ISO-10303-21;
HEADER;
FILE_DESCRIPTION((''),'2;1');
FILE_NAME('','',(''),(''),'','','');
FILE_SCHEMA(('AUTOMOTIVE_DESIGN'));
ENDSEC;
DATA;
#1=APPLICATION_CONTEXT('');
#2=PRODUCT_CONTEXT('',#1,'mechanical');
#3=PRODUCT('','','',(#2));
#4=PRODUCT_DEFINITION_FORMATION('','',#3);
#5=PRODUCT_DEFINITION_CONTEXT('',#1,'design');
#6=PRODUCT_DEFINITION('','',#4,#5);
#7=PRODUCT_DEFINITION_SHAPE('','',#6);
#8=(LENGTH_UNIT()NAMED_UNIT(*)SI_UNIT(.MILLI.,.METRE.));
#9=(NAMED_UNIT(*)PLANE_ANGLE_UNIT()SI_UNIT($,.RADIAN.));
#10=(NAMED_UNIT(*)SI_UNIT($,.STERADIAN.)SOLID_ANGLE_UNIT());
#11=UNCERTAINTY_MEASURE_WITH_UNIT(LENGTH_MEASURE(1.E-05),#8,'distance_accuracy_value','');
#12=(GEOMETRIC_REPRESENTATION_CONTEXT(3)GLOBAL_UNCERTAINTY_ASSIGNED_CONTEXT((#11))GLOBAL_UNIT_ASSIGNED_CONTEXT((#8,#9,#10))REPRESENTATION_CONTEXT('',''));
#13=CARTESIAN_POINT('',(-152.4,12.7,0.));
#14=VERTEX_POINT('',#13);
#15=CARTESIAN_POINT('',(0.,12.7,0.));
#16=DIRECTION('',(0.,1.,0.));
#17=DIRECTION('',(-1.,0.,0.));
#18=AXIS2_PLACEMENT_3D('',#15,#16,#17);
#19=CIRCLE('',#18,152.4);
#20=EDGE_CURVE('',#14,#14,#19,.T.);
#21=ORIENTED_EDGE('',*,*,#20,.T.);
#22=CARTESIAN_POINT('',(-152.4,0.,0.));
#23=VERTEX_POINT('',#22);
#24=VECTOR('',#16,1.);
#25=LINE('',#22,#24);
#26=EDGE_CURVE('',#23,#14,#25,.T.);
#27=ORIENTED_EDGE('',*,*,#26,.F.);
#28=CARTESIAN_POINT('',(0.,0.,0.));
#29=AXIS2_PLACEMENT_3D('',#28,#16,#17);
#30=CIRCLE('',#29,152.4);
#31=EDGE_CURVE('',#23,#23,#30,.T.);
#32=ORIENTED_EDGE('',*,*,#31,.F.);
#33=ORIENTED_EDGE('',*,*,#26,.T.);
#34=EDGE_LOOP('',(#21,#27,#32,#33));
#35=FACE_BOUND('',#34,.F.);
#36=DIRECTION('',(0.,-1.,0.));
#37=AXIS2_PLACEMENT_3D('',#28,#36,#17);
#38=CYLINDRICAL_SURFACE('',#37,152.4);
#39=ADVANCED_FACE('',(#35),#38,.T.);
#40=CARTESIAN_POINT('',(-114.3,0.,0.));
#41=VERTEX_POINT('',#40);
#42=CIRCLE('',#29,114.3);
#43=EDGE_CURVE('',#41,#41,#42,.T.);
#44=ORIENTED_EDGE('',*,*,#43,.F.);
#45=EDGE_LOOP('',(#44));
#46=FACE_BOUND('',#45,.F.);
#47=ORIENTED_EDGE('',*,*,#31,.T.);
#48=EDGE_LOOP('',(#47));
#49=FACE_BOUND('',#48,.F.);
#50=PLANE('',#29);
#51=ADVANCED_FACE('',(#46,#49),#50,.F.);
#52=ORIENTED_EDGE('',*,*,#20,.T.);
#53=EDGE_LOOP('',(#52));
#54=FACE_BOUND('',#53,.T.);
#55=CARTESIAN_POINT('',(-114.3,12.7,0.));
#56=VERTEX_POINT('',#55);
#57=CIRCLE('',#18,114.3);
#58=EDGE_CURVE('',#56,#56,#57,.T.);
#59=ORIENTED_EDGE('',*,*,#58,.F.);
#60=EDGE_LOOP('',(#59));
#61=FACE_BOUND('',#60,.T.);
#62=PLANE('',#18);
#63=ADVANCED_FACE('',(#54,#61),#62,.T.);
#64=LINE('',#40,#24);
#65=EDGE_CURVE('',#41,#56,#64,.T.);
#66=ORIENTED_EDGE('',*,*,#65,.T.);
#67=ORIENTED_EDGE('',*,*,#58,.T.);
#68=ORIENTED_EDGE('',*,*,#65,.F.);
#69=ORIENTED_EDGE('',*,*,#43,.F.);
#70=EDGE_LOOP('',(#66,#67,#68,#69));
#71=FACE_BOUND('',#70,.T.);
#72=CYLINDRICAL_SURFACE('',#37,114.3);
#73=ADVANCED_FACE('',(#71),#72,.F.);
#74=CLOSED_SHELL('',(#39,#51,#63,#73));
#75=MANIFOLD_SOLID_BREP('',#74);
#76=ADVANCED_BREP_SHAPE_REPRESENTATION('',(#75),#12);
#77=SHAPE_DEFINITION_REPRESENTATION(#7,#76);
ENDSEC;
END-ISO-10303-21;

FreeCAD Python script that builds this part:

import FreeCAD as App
import Part
import Sketcher

V = App.Vector
Q = App.Units.Quantity

doc = App.newDocument("Part")
params = doc.addObject("Spreadsheet::Sheet", "Params")
for row, (alias, value) in enumerate([
    ("sketch1_diameter", "12 in"),
    ("sketch1_diameter2", "9 in"),
    ("pad1_length", "0.5 in"),
], start=1):
    params.set(f"A{row}", alias)
    params.set(f"B{row}", "=" + value)
    params.setAlias(f"B{row}", alias)

body = doc.addObject("PartDesign::Body", "Body")

# Sketch on XZ plane
sketch1 = body.newObject("Sketcher::SketchObject", "Sketch")
sketch1.AttachmentSupport = (doc.getObject("XZ_Plane"), [""])
sketch1.MapMode = "FlatFace"
sketch1.addGeometry([
    Part.Circle(V(0, 0, 0), V(0, 0, 1), 152),
    Part.Circle(V(0, 0, 0), V(0, 0, 1), 114),
], False)
sketch1.addConstraint([
    Sketcher.Constraint("Coincident", 0, 3, -1, 1),
    Sketcher.Constraint("Coincident", 1, 3, -1, 1),
    Sketcher.Constraint("Diameter", 0, Q("12 in")),
    Sketcher.Constraint("Diameter", 1, Q("9 in")),
])
sketch1.setExpression("Constraints[2]", "Params.sketch1_diameter")
sketch1.setExpression("Constraints[3]", "Params.sketch1_diameter2")
pad1 = body.newObject("PartDesign::Pad", "Pad")
pad1.Profile = sketch1
pad1.setExpression("Length", "Params.pad1_length")
pad1.Reversed = True

doc.recompute()
